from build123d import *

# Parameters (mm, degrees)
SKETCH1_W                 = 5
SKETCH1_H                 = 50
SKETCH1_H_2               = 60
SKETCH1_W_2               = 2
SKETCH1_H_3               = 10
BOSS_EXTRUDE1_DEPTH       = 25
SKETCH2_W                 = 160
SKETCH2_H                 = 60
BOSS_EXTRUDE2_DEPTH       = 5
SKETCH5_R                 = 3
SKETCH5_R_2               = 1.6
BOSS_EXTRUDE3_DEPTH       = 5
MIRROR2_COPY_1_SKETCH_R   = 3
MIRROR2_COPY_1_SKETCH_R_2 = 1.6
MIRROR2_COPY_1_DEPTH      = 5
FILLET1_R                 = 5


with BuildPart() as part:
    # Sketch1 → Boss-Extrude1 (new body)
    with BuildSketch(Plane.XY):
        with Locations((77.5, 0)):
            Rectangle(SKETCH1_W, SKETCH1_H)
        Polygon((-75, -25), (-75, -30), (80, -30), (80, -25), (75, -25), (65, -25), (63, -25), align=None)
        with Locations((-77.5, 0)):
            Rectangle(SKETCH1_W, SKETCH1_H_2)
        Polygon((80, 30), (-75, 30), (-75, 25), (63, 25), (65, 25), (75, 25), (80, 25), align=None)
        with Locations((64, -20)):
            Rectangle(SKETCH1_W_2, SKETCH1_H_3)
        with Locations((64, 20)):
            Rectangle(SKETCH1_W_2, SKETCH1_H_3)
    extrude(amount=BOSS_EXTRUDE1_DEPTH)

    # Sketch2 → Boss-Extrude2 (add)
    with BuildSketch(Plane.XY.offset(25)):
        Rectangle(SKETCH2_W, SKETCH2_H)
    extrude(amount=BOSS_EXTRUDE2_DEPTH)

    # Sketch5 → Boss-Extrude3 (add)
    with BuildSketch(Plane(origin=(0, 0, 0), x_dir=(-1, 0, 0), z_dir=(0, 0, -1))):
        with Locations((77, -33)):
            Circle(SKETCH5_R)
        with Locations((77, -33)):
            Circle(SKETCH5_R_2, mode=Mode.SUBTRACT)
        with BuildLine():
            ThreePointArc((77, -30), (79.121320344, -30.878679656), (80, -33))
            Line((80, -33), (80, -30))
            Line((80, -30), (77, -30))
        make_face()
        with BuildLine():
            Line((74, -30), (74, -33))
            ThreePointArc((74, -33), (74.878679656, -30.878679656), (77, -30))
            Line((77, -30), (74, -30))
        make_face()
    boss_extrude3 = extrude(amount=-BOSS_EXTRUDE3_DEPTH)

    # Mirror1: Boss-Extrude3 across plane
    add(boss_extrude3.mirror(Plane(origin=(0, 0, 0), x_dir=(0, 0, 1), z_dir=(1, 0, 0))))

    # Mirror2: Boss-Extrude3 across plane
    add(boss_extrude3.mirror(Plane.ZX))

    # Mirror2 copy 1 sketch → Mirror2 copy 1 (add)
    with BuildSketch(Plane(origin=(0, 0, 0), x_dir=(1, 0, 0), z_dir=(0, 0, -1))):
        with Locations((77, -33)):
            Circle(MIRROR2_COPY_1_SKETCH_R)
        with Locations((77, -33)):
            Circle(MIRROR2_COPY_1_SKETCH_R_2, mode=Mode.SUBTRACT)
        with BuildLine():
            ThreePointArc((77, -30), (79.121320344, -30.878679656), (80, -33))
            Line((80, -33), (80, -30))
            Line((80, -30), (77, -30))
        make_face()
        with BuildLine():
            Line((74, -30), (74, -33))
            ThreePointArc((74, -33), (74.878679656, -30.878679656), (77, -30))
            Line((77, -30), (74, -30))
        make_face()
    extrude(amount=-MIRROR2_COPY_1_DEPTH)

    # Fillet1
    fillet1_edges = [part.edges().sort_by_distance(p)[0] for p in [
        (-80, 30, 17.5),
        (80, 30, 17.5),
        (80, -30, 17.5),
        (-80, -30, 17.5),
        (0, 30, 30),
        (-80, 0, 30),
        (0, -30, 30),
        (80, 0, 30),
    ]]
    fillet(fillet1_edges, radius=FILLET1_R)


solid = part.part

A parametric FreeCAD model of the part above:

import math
import FreeCAD as App
import Part
import Sketcher

V = App.Vector


def edges_at(feature, points):
    """Names of the edges that pass closest to the given points."""
    edges = feature.Shape.Edges
    near = lambda p: min(range(len(edges)), key=lambda i: edges[i].distToShape(Part.Vertex(*p))[0])
    return sorted({f"Edge{near(p) + 1}" for p in points})


def add_polygon(sketch, points):
    """Adds a closed chain of lines whose ends are joined by coincident constraints."""
    first, n = sketch.GeometryCount, len(points)
    for a, b in zip(points, points[1:] + points[:1]):
        sketch.addGeometry(Part.LineSegment(App.Vector(*a, 0), App.Vector(*b, 0)), False)
    for i in range(n):
        sketch.addConstraint(Sketcher.Constraint("Coincident", first + i, 2, first + (i + 1) % n, 1))

doc = App.newDocument("Part")
params = doc.addObject("Spreadsheet::Sheet", "Params")
for row, (alias, value) in enumerate([
    ("sketch1_width", "160 mm"),
    ("sketch1_width2", "10 mm"),
    ("sketch1_width3", "2 mm"),
    ("sketch1_width4", "138 mm"),
    ("sketch1_height", "60 mm"),
    ("pad1_length", "25 mm"),
    ("sketch2_width", "160 mm"),
    ("sketch2_height", "60 mm"),
    ("pad2_length", "5 mm"),
    ("sketch3_radius", "3 mm"),
    ("sketch3_diameter", "3.2 mm"),
    ("sketch3_height", "3 mm"),
    ("pad3_length", "5 mm"),
    ("sketch4_radius", "3 mm"),
    ("sketch4_diameter", "3.2 mm"),
    ("sketch4_height", "3 mm"),
    ("pad4_length", "5 mm"),
    ("fillet_radius", "5 mm"),
], start=1):
    params.set(f"A{row}", alias)
    params.set(f"B{row}", "=" + value)
    params.setAlias(f"B{row}", alias)

body = doc.addObject("PartDesign::Body", "Body")

# Sketch on XY plane
sketch1 = doc.addObject("Sketcher::SketchObject", "Sketch")
body.addObject(sketch1)
sketch1.AttachmentSupport = (doc.XY_Plane, [""])
sketch1.MapMode = "FlatFace"
add_polygon(sketch1, [(-80, 30), (-80, -30), (80, -30), (80, 30)])  # lines 0-3
add_polygon(sketch1, [(75, 25), (75, -25), (65, -25), (65, -15), (63, -15), (63, -25), (-75, -25), (-75, 25), (63, 25), (63, 15), (65, 15), (65, 25)])  # lines 4-15
sketch1.addConstraint([
    Sketcher.Constraint("Vertical", 0),
    Sketcher.Constraint("Horizontal", 1),
    Sketcher.Constraint("Vertical", 2),
    Sketcher.Constraint("Horizontal", 3),
    Sketcher.Constraint("Vertical", 4),
    Sketcher.Constraint("Horizontal", 5),
    Sketcher.Constraint("Vertical", 6),
    Sketcher.Constraint("Horizontal", 7),
    Sketcher.Constraint("Vertical", 8),
    Sketcher.Constraint("Horizontal", 9),
    Sketcher.Constraint("Vertical", 10),
    Sketcher.Constraint("Horizontal", 11),
    Sketcher.Constraint("Vertical", 12),
    Sketcher.Constraint("Horizontal", 13),
    Sketcher.Constraint("Vertical", 14),
    Sketcher.Constraint("Horizontal", 15),
    Sketcher.Constraint("Symmetric", 0, 2, 2, 2, -1, 1),
    Sketcher.Constraint("Symmetric", 4, 2, 10, 2, -1, 1),
    Sketcher.Constraint("Symmetric", 8, 2, 11, 2, -1),
    Sketcher.Constraint("Symmetric", 6, 2, 13, 2, -1),
    Sketcher.Constraint("Horizontal", 11, 2, 14, 2),
    Sketcher.Constraint("Equal", 15, 6),
    Sketcher.Constraint("DistanceX", 1, 1, 1, 2, 160.0),
    Sketcher.Constraint("DistanceX", 5, 2, 5, 1, 10.0),
    Sketcher.Constraint("DistanceX", 7, 2, 7, 1, 2.0),
    Sketcher.Constraint("DistanceX", 9, 2, 9, 1, 138.0),
    Sketcher.Constraint("DistanceY", 0, 2, 0, 1, 60.0),
    Sketcher.Constraint("DistanceY", 4, 2, 4, 1, 50.0),
])
sketch1.setExpression("Constraints[38]", "Params.sketch1_width")
sketch1.setExpression("Constraints[39]", "Params.sketch1_width2")
sketch1.setExpression("Constraints[40]", "Params.sketch1_width3")
sketch1.setExpression("Constraints[41]", "Params.sketch1_width4")
sketch1.setExpression("Constraints[42]", "Params.sketch1_height")
pad1 = doc.addObject("PartDesign::Pad", "Pad")
body.addObject(pad1)
pad1.Profile = sketch1
pad1.setExpression("Length", "Params.pad1_length")

# Sketch on XY plane
sketch2 = doc.addObject("Sketcher::SketchObject", "Sketch001")
body.addObject(sketch2)
sketch2.AttachmentSupport = (doc.XY_Plane, [""])
sketch2.MapMode = "FlatFace"
sketch2.AttachmentOffset = App.Placement(V(0, 0, 25), App.Rotation())
add_polygon(sketch2, [(-80, 30), (-80, -30), (80, -30), (80, 30)])  # lines 0-3
sketch2.addConstraint([
    Sketcher.Constraint("Vertical", 0),
    Sketcher.Constraint("Horizontal", 1),
    Sketcher.Constraint("Vertical", 2),
    Sketcher.Constraint("Horizontal", 3),
    Sketcher.Constraint("Symmetric", 0, 2, 2, 2, -1, 1),
    Sketcher.Constraint("DistanceX", 1, 1, 1, 2, 160.0),
    Sketcher.Constraint("DistanceY", 0, 2, 0, 1, 60.0),
])
sketch2.setExpression("Constraints[9]", "Params.sketch2_width")
sketch2.setExpression("Constraints[10]", "Params.sketch2_height")
pad2 = doc.addObject("PartDesign::Pad", "Pad001")
body.addObject(pad2)
pad2.Profile = sketch2
pad2.setExpression("Length", "Params.pad2_length")

# Sketch on XY plane
sketch3 = doc.addObject("Sketcher::SketchObject", "Sketch002")
body.addObject(sketch3)
sketch3.AttachmentSupport = (doc.XY_Plane, [""])
sketch3.MapMode = "FlatFace"
sketch3.addGeometry([
    Part.ArcOfCircle(Part.Circle(V(-77, -33, 0), V(0, 0, 1), 3), math.radians(180), math.radians(360)),  # 0
    Part.LineSegment(V(-80, -33, 0), V(-80, -30, 0)),  # 1
    Part.LineSegment(V(-80, -30, 0), V(-74, -30, 0)),  # 2
    Part.LineSegment(V(-74, -30, 0), V(-74, -33, 0)),  # 3
    Part.Circle(V(-77, -33, 0), V(0, 0, 1), 1.6),  # 4
], False)
sketch3.addConstraint([
    Sketcher.Constraint("Tangent", 0, 1, 1, 1),
    Sketcher.Constraint("Coincident", 1, 2, 2, 1),
    Sketcher.Constraint("Coincident", 2, 2, 3, 1),
    Sketcher.Constraint("Tangent", 3, 2, 0, 2),
    Sketcher.Constraint("Vertical", 1),
    Sketcher.Constraint("Horizontal", 2),
    Sketcher.Constraint("Vertical", 3),
    Sketcher.Constraint("Coincident", 4, 3, 0, 3),
    Sketcher.Constraint("Radius", 0, 3.0),
    Sketcher.Constraint("Diameter", 4, 3.2),
    Sketcher.Constraint("DistanceY", 1, 1, 1, 2, 3.0),
    Sketcher.Constraint("DistanceX", 0, 3, -1, 1, 77.0),
    Sketcher.Constraint("DistanceY", 0, 3, -1, 1, 33.0),
])
sketch3.setExpression("Constraints[8]", "Params.sketch3_radius")
sketch3.setExpression("Constraints[9]", "Params.sketch3_diameter")
sketch3.setExpression("Constraints[10]", "Params.sketch3_height")
pad3 = doc.addObject("PartDesign::Pad", "Pad002")
body.addObject(pad3)
pad3.Profile = sketch3
pad3.setExpression("Length", "Params.pad3_length")
doc.recompute()

mirrored = doc.addObject("PartDesign::Mirrored", "Mirrored")
body.addObject(mirrored)
mirrored.Originals = [pad3]
mirrored.MirrorPlane = (doc.YZ_Plane, [""])
body.Tip = mirrored
doc.recompute()

mirrored2 = doc.addObject("PartDesign::Mirrored", "Mirrored001")
body.addObject(mirrored2)
mirrored2.Originals = [pad3]
mirrored2.MirrorPlane = (doc.XZ_Plane, [""])
body.Tip = mirrored2

# Sketch on XY plane
sketch4 = doc.addObject("Sketcher::SketchObject", "Sketch003")
body.addObject(sketch4)
sketch4.AttachmentSupport = (doc.XY_Plane, [""])
sketch4.MapMode = "FlatFace"
sketch4.addGeometry([
    Part.ArcOfCircle(Part.Circle(V(77, 33, 0), V(0, 0, 1), 3), math.radians(0), math.radians(180)),  # 0
    Part.LineSegment(V(80, 33, 0), V(80, 30, 0)),  # 1
    Part.LineSegment(V(80, 30, 0), V(74, 30, 0)),  # 2
    Part.LineSegment(V(74, 30, 0), V(74, 33, 0)),  # 3
    Part.Circle(V(77, 33, 0), V(0, 0, 1), 1.6),  # 4
], False)
sketch4.addConstraint([
    Sketcher.Constraint("Tangent", 0, 1, 1, 1),
    Sketcher.Constraint("Coincident", 1, 2, 2, 1),
    Sketcher.Constraint("Coincident", 2, 2, 3, 1),
    Sketcher.Constraint("Tangent", 3, 2, 0, 2),
    Sketcher.Constraint("Vertical", 1),
    Sketcher.Constraint("Horizontal", 2),
    Sketcher.Constraint("Vertical", 3),
    Sketcher.Constraint("Coincident", 4, 3, 0, 3),
    Sketcher.Constraint("Radius", 0, 3.0),
    Sketcher.Constraint("Diameter", 4, 3.2),
    Sketcher.Constraint("DistanceY", 1, 2, 1, 1, 3.0),
    Sketcher.Constraint("DistanceX", -1, 1, 0, 3, 77.0),
    Sketcher.Constraint("DistanceY", -1, 1, 0, 3, 33.0),
])
sketch4.setExpression("Constraints[8]", "Params.sketch4_radius")
sketch4.setExpression("Constraints[9]", "Params.sketch4_diameter")
sketch4.setExpression("Constraints[10]", "Params.sketch4_height")
pad4 = doc.addObject("PartDesign::Pad", "Pad003")
body.addObject(pad4)
pad4.Profile = sketch4
pad4.setExpression("Length", "Params.pad4_length")
doc.recompute()

fillet = doc.addObject("PartDesign::Fillet", "Fillet")
body.addObject(fillet)
fillet.Base = (pad4, edges_at(pad4, [
    (-80, 30, 17.5),
    (80, 30, 17.5),
    (80, -30, 17.5),
    (-80, -30, 17.5),
    (0, 30, 30),
    (-80, 0, 30),
    (0, -30, 30),
    (80, 0, 30),
]))
fillet.setExpression("Radius", "Params.fillet_radius")

doc.recompute()
